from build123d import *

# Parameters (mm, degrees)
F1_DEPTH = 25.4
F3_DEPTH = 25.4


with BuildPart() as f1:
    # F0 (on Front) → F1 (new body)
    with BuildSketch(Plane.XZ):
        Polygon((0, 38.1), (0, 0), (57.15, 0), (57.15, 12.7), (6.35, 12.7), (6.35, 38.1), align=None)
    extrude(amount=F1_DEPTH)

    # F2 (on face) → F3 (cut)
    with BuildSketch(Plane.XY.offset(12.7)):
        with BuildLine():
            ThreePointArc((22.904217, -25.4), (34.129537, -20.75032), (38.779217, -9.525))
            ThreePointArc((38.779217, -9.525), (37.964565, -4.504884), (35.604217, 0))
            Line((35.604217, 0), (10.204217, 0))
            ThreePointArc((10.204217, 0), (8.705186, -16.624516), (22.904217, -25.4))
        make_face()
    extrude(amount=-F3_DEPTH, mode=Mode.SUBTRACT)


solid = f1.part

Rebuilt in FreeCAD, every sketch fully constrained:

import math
import FreeCAD as App
import Part
import Sketcher
Q = App.Units.Quantity

doc = App.newDocument("Part")
body = doc.addObject("PartDesign::Body", "Body")
body.AllowCompound = True

sketch1 = doc.addObject("Sketcher::SketchObject", "Sketch")
body.addObject(sketch1)
sketch1.AttachmentSupport = (doc.XZ_Plane, [""])
sketch1.MapMode = "FlatFace"
sketch1.addGeometry([
    Part.LineSegment(App.Vector(0, 38, 0), App.Vector(0, 0, 0)),
    Part.LineSegment(App.Vector(0, 0, 0), App.Vector(57, 0, 0)),
    Part.LineSegment(App.Vector(57, 0, 0), App.Vector(57, 13, 0)),
    Part.LineSegment(App.Vector(57, 13, 0), App.Vector(6, 13, 0)),
    Part.LineSegment(App.Vector(6, 13, 0), App.Vector(6, 38, 0)),
    Part.LineSegment(App.Vector(6, 38, 0), App.Vector(0, 38, 0)),
], False)
sketch1.addConstraint([
    Sketcher.Constraint("Coincident", 0, 2, 1, 1),
    Sketcher.Constraint("Coincident", 1, 2, 2, 1),
    Sketcher.Constraint("Coincident", 2, 2, 3, 1),
    Sketcher.Constraint("Coincident", 3, 2, 4, 1),
    Sketcher.Constraint("Coincident", 4, 2, 5, 1),
    Sketcher.Constraint("Coincident", 5, 2, 0, 1),
    Sketcher.Constraint("Vertical", 0),
    Sketcher.Constraint("Horizontal", 1),
    Sketcher.Constraint("Vertical", 2),
    Sketcher.Constraint("Horizontal", 3),
    Sketcher.Constraint("Vertical", 4),
    Sketcher.Constraint("Horizontal", 5),
    Sketcher.Constraint("Coincident", 0, 2, -1, 1),
    Sketcher.Constraint("DistanceX", 3, 2, 3, 1, Q("2 in")),
    Sketcher.Constraint("DistanceY", 4, 1, 4, 2, Q("1 in")),
    Sketcher.Constraint("DistanceY", 0, 2, 0, 1, Q("1.5 in")),
    Sketcher.Constraint("DistanceX", 1, 1, 1, 2, Q("2.25 in")),
])
pad1 = doc.addObject("PartDesign::Pad", "Pad")
body.addObject(pad1)
pad1.Profile = sketch1
pad1.Length = Q("1 in")

sketch2 = doc.addObject("Sketcher::SketchObject", "Sketch001")
body.addObject(sketch2)
sketch2.AttachmentSupport = (doc.XY_Plane, [""])
sketch2.MapMode = "FlatFace"
sketch2.AttachmentOffset = App.Placement(App.Vector(0, 0, 0.5 * 25.4), App.Rotation())
sketch2.addGeometry([
    Part.ArcOfCircle(Part.Circle(App.Vector(23, -10, 0), App.Vector(0, 0, 1), 16), math.radians(-90), math.radians(0)),
    Part.ArcOfCircle(Part.Circle(App.Vector(23, -10, 0), App.Vector(0, 0, 1), 16), math.radians(0), math.radians(37)),
    Part.LineSegment(App.Vector(36, 0, 0), App.Vector(10, 0, 0)),
    Part.ArcOfCircle(Part.Circle(App.Vector(23, -10, 0), App.Vector(0, 0, 1), 16), math.radians(143), math.radians(270)),
], False)
sketch2.addConstraint([
    Sketcher.Constraint("Tangent", 0, 2, 1, 1),
    Sketcher.Constraint("Coincident", 1, 2, 2, 1),
    Sketcher.Constraint("Coincident", 2, 2, 3, 1),
    Sketcher.Constraint("Tangent", 3, 2, 0, 1),
    Sketcher.Constraint("Horizontal", 2),
    Sketcher.Constraint("Equal", 0, 3),
    Sketcher.Constraint("PointOnObject", 1, 2, -1),
    Sketcher.Constraint("Horizontal", 3, 3, 0, 2),
    Sketcher.Constraint("Vertical", 0, 3, 3, 2),
    Sketcher.Constraint("DistanceX", 2, 2, 2, 1, Q("1 in")),
    Sketcher.Constraint("DistanceY", 3, 2, -1, 1, Q("1 in")),
    Sketcher.Constraint("Radius", 0, Q("0.625 in")),
    Sketcher.Constraint("DistanceX", -1, 1, 1, 3, 22.90423),
])
pocket1 = doc.addObject("PartDesign::Pocket", "Pocket")
body.addObject(pocket1)
pocket1.Profile = sketch2
pocket1.Length = Q("1 in")

doc.recompute()
